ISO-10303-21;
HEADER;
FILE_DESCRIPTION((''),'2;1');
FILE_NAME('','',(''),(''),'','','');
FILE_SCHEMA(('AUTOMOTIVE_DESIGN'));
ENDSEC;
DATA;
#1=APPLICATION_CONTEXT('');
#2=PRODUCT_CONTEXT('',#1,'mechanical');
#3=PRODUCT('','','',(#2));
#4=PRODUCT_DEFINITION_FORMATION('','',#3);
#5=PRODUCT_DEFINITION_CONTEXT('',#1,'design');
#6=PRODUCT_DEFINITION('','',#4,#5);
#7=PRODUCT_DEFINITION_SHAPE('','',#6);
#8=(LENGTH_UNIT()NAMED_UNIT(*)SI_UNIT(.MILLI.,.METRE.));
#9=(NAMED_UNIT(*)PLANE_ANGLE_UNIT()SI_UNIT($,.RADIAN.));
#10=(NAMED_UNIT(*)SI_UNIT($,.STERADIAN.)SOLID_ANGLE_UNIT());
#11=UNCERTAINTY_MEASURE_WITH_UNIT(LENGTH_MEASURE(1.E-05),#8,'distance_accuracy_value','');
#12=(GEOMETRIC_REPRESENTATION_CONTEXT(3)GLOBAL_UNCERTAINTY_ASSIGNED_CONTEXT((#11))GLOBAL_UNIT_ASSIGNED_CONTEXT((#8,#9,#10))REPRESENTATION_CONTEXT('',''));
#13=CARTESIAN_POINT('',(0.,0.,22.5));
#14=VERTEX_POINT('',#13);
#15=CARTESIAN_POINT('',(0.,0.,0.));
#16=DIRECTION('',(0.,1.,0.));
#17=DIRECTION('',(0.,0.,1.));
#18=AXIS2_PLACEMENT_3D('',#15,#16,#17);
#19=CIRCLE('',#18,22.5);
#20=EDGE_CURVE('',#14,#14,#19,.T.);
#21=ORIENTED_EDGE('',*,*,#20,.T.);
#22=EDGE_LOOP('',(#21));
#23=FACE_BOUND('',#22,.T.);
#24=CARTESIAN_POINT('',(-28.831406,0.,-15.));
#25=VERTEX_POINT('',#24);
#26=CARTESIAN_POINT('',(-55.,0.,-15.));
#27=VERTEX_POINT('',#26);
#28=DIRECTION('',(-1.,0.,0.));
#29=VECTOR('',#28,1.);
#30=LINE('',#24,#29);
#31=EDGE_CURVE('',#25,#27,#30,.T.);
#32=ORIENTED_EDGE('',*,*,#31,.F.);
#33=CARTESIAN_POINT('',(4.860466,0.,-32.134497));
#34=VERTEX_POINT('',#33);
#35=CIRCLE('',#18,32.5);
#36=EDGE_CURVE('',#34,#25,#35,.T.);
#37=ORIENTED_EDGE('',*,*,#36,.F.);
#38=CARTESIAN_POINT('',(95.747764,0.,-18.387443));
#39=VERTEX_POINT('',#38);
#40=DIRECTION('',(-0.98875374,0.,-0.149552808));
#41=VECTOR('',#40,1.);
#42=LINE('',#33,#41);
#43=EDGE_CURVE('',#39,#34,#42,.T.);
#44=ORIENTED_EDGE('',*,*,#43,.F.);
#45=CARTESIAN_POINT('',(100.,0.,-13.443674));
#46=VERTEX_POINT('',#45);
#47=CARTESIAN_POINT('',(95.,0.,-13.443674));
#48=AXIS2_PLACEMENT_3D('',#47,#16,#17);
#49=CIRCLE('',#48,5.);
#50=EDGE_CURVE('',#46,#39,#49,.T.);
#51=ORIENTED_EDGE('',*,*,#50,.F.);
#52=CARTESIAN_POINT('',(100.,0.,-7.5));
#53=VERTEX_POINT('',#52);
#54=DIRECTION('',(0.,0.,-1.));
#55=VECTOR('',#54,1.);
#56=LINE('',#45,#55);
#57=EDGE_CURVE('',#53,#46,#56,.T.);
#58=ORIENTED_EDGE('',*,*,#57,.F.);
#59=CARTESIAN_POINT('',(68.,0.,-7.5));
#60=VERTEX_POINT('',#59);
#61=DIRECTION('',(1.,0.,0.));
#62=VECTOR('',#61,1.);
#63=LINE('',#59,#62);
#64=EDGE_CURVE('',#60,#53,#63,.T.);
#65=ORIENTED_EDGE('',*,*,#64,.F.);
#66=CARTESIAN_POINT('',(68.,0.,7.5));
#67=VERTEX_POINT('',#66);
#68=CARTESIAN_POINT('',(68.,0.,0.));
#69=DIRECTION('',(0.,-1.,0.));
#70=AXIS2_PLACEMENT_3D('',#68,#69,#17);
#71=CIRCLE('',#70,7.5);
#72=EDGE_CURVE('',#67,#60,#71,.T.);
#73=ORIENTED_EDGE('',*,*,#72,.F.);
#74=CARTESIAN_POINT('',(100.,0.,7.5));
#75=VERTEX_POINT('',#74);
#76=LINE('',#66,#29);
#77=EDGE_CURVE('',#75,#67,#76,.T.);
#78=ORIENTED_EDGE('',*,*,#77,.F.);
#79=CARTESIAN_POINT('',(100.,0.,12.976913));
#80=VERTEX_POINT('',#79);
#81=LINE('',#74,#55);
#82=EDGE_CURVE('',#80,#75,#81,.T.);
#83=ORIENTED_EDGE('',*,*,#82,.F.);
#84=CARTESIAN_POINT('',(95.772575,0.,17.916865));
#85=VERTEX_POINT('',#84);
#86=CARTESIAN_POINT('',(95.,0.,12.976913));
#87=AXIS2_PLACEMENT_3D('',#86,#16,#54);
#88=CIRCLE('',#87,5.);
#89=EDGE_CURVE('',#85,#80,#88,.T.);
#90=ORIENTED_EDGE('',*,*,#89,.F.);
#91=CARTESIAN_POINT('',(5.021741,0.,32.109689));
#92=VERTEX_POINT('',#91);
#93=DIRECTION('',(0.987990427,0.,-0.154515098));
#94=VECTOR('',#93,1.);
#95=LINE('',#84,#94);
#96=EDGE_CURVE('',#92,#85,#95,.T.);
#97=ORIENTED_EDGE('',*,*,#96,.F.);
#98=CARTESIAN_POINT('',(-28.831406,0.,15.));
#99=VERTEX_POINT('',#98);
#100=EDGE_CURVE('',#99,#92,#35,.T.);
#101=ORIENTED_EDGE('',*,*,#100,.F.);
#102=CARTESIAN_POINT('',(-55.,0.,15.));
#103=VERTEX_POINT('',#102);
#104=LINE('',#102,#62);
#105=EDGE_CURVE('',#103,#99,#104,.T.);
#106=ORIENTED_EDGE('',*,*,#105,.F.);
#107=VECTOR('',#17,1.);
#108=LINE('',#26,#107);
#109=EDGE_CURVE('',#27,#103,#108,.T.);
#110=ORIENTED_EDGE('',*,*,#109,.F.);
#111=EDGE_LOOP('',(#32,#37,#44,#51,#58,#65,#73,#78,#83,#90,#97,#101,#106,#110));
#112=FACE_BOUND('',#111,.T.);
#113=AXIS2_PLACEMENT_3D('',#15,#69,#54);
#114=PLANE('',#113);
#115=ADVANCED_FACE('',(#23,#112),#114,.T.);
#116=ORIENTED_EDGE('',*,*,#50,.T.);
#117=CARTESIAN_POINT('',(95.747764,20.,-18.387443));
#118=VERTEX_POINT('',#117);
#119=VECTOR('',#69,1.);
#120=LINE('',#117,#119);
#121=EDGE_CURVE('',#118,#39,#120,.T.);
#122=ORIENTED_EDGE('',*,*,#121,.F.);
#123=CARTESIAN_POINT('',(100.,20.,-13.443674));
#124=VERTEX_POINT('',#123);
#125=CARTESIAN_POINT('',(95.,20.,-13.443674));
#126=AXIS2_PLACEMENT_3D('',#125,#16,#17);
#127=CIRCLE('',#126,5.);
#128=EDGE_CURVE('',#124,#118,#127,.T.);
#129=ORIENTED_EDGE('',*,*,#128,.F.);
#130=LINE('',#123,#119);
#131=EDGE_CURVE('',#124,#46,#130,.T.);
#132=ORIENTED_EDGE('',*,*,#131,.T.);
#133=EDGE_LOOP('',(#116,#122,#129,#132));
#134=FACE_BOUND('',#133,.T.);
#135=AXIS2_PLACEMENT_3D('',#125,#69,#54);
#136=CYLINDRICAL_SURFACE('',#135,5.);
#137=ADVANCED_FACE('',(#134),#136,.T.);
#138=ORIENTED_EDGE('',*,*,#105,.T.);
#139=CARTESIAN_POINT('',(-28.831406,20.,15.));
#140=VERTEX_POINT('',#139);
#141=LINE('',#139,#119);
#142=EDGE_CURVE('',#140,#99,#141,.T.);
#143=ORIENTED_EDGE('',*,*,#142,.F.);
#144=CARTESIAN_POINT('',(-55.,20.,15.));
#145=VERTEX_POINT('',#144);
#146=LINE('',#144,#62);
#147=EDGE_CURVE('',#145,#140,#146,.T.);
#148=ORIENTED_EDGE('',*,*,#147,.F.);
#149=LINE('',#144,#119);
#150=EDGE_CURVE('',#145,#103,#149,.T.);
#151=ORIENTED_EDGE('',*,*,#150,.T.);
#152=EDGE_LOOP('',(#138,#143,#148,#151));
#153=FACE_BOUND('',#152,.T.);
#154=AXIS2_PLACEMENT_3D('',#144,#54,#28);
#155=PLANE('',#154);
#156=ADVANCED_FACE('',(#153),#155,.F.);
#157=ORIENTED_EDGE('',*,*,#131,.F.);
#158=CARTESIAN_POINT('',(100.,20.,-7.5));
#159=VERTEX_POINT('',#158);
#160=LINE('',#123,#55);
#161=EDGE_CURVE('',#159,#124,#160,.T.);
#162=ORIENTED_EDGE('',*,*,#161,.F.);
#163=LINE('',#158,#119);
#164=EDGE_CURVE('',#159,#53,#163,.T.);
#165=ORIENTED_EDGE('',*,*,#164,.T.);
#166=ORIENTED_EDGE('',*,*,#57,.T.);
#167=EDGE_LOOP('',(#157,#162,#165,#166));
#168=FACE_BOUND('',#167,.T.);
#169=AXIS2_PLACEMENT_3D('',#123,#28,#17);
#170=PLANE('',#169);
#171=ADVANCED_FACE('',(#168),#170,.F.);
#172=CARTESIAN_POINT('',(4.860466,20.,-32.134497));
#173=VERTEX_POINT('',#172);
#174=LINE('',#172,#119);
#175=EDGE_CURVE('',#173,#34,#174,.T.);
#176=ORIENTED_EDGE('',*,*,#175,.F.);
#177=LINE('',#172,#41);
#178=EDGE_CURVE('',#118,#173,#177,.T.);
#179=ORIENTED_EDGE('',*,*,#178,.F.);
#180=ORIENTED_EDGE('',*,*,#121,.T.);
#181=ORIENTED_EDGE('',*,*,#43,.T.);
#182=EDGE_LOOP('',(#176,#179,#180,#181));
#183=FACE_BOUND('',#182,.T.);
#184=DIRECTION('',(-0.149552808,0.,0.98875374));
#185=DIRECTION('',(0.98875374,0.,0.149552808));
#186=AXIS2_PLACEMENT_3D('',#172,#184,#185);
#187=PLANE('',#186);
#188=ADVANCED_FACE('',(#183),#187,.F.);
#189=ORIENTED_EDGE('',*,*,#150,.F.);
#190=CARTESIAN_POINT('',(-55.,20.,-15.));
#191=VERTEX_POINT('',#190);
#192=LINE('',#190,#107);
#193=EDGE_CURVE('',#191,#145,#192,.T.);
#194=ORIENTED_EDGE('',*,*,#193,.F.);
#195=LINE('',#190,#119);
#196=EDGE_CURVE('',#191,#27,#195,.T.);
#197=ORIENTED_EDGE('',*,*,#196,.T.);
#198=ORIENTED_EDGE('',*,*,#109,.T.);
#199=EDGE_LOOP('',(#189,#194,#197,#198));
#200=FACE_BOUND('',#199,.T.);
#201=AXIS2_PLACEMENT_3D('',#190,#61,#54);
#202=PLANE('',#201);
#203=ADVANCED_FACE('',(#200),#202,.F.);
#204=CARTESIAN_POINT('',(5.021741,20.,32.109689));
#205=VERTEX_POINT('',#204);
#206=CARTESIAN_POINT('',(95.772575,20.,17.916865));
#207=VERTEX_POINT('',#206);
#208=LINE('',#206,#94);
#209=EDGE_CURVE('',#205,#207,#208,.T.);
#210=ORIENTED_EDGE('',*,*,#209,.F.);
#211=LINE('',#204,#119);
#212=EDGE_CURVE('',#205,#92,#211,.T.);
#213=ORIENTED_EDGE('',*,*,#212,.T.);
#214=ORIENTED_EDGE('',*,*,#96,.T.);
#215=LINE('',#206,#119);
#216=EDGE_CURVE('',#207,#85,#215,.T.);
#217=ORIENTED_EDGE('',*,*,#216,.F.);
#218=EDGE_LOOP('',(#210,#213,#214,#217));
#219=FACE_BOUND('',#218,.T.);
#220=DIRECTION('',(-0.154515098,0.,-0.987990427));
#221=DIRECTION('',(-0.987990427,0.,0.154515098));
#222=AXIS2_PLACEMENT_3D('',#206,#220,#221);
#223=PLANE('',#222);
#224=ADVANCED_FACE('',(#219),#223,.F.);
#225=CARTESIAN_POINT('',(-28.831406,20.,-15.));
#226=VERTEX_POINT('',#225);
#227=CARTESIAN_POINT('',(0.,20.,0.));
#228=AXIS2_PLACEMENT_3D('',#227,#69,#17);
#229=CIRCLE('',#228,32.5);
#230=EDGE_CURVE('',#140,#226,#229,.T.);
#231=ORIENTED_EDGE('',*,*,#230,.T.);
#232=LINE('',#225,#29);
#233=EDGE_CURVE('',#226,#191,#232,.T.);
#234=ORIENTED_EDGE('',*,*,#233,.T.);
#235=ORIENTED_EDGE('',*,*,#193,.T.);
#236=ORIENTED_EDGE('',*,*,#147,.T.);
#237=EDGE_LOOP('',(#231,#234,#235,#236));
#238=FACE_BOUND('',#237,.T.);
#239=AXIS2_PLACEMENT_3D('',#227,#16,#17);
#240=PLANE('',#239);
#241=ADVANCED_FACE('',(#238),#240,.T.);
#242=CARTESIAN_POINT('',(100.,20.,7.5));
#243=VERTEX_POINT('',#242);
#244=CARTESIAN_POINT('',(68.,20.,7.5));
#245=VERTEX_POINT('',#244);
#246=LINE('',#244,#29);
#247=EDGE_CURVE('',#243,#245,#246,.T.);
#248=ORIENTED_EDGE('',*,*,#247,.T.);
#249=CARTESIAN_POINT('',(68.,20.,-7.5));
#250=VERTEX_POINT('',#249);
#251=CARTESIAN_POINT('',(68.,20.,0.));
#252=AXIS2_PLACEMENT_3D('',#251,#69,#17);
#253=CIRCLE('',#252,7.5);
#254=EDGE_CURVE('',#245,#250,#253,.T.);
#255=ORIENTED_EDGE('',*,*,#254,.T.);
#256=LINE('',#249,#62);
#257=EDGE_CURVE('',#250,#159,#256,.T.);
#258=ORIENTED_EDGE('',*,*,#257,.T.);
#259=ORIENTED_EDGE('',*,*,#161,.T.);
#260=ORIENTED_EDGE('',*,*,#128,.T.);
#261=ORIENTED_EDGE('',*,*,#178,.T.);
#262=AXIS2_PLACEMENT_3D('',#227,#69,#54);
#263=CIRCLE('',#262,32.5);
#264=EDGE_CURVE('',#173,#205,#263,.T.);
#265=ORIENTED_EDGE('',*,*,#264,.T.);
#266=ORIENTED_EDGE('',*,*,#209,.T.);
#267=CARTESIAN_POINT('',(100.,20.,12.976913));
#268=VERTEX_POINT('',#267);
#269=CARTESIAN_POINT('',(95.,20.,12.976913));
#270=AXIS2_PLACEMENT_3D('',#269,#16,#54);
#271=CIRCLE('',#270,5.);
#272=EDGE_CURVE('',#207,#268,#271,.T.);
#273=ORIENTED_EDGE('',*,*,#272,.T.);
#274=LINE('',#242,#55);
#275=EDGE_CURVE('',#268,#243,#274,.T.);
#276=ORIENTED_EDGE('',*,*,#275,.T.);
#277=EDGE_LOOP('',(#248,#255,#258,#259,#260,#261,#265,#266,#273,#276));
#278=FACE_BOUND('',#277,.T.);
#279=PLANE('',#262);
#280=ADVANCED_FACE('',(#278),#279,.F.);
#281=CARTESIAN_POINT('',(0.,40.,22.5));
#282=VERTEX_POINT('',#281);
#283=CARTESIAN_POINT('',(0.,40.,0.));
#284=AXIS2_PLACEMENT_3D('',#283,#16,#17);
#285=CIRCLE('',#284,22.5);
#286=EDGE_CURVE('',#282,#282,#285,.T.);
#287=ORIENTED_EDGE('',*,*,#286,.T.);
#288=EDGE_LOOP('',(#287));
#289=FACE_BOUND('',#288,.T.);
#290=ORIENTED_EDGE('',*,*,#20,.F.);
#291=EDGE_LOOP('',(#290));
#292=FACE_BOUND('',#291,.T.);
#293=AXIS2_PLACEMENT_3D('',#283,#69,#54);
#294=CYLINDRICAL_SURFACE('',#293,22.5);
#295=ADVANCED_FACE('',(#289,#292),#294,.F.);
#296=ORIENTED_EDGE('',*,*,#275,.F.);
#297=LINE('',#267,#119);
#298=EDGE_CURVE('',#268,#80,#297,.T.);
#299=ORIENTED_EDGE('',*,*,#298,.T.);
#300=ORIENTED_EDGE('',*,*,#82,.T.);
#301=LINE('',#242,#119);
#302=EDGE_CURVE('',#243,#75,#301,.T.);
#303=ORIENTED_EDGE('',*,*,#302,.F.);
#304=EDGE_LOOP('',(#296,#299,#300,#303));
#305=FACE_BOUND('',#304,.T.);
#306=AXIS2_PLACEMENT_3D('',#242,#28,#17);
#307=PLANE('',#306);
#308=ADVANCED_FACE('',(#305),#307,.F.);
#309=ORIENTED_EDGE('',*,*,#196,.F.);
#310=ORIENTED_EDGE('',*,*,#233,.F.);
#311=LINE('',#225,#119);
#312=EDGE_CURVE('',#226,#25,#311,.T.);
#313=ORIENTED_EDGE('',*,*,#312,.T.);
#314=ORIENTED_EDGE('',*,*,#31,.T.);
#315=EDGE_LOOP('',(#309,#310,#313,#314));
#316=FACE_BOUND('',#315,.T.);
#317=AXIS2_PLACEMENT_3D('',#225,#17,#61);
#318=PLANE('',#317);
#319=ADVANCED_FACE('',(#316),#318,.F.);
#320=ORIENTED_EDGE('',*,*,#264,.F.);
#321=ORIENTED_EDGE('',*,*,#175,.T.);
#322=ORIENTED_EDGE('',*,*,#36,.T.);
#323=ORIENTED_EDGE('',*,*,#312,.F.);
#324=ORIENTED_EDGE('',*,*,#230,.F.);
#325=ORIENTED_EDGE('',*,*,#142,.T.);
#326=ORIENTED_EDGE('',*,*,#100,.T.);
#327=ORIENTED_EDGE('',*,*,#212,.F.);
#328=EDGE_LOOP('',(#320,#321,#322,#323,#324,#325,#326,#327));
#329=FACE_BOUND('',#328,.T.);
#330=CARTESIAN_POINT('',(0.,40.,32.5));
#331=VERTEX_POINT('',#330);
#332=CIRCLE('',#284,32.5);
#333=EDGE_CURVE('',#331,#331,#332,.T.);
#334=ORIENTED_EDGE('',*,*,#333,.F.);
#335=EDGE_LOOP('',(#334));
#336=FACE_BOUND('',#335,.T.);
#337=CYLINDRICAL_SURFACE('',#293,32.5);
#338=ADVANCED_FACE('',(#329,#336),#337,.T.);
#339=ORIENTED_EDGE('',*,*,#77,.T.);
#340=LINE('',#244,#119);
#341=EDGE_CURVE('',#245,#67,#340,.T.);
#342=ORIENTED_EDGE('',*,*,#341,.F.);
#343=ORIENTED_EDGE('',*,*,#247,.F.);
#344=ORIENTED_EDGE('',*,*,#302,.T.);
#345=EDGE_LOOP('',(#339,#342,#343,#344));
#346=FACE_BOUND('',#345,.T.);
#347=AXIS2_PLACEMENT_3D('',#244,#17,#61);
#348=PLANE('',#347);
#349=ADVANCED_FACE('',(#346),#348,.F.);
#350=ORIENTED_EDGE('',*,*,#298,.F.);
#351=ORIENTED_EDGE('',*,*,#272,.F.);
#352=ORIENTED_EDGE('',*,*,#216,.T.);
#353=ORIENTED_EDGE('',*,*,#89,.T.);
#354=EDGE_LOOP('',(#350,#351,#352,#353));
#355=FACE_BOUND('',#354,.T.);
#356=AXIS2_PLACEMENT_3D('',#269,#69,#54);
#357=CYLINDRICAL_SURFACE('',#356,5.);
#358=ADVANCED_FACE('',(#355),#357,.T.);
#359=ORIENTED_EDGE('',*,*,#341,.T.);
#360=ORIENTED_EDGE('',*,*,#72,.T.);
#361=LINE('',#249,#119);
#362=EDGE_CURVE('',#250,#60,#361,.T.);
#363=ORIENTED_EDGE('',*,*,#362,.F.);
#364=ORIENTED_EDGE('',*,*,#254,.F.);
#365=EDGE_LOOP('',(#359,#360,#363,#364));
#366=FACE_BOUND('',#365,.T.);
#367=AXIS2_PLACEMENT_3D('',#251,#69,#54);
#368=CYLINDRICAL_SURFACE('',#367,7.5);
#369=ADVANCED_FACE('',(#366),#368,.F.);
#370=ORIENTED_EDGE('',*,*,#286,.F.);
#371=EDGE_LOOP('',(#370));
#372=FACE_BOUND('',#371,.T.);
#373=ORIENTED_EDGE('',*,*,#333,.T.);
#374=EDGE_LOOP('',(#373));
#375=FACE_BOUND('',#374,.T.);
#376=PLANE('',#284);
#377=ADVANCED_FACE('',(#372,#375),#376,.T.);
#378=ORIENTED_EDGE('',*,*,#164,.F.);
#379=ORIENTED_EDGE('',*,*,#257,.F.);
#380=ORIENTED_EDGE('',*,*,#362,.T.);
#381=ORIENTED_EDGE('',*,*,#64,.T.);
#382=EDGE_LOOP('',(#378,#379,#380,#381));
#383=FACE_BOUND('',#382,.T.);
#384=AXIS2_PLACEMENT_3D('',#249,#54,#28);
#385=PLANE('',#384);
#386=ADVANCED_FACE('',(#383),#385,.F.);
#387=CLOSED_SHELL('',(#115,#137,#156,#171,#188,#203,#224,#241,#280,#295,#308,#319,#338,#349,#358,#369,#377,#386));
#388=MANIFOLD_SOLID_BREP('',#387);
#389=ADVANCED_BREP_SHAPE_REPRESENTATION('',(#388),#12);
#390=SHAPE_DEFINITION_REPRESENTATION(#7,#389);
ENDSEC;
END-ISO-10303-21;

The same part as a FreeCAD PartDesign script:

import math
import FreeCAD as App
import Part
import Sketcher
Q = App.Units.Quantity

doc = App.newDocument("Part")
body = doc.addObject("PartDesign::Body", "Body")

sketch1 = doc.addObject("Sketcher::SketchObject", "Sketch")
body.addObject(sketch1)
sketch1.AttachmentSupport = (doc.XZ_Plane, [""])
sketch1.MapMode = "FlatFace"
sketch1.addGeometry([
    Part.LineSegment(App.Vector(96, -18, 0), App.Vector(5, -32, 0)),
    Part.ArcOfCircle(Part.Circle(App.Vector(0, 0, 0), App.Vector(0, 0, 1), 32), math.radians(-81), math.radians(81)),
    Part.LineSegment(App.Vector(5, 32, 0), App.Vector(96, 18, 0)),
    Part.ArcOfCircle(Part.Circle(App.Vector(95, 13, 0), App.Vector(0, 0, 1), 5), math.radians(0), math.radians(81)),
    Part.LineSegment(App.Vector(100, 13, 0), App.Vector(100, 8, 0)),
    Part.LineSegment(App.Vector(100, 8, 0), App.Vector(68, 8, 0)),
    Part.ArcOfCircle(Part.Circle(App.Vector(68, 0, 0), App.Vector(0, 0, 1), 8), math.radians(90), math.radians(270)),
    Part.LineSegment(App.Vector(68, -8, 0), App.Vector(100, -8, 0)),
    Part.LineSegment(App.Vector(100, -8, 0), App.Vector(100, -13, 0)),
    Part.ArcOfCircle(Part.Circle(App.Vector(95, -13, 0), App.Vector(0, 0, 1), 5), math.radians(-81), math.radians(0)),
], False)
sketch1.addConstraint([
    Sketcher.Constraint("Tangent", 0, 2, 1, 1),
    Sketcher.Constraint("Tangent", 1, 2, 2, 1),
    Sketcher.Constraint("Tangent", 2, 2, 3, 2),
    Sketcher.Constraint("Tangent", 3, 1, 4, 1),
    Sketcher.Constraint("Coincident", 4, 2, 5, 1),
    Sketcher.Constraint("Tangent", 5, 2, 6, 1),
    Sketcher.Constraint("Tangent", 6, 2, 7, 1),
    Sketcher.Constraint("Coincident", 7, 2, 8, 1),
    Sketcher.Constraint("Tangent", 8, 2, 9, 2),
    Sketcher.Constraint("Tangent", 9, 1, 0, 1),
    Sketcher.Constraint("Vertical", 4),
    Sketcher.Constraint("Horizontal", 5),
    Sketcher.Constraint("Horizontal", 7),
    Sketcher.Constraint("Vertical", 8),
    Sketcher.Constraint("Coincident", 1, 3, -1, 1),
    Sketcher.Constraint("Equal", 3, 9),
    Sketcher.Constraint("Symmetric", 4, 2, 7, 2, -1),
    Sketcher.Constraint("Radius", 3, Q("5 mm")),
    Sketcher.Constraint("Radius", 1, Q("32.5 mm")),
    Sketcher.Constraint("Radius", 6, Q("7.5 mm")),
    Sketcher.Constraint("DistanceX", 5, 2, 5, 1, Q("32 mm")),
    Sketcher.Constraint("DistanceX", -1, 1, 3, 3, Q("95 mm")),
    Sketcher.Constraint("Distance", 2, Q("91.853962 mm")),
    Sketcher.Constraint("DistanceY", 8, 2, 8, 1, Q("5.943674 mm")),
])
pad1 = doc.addObject("PartDesign::Pad", "Pad")
body.addObject(pad1)
pad1.Profile = sketch1
pad1.Length = 20
pad1.Reversed = True

sketch2 = doc.addObject("Sketcher::SketchObject", "Sketch001")
body.addObject(sketch2)
sketch2.AttachmentSupport = (doc.XZ_Plane, [""])
sketch2.MapMode = "FlatFace"
sketch2.addGeometry([
    Part.Circle(App.Vector(0, 0, 0), App.Vector(0, 0, 1), 32),
    Part.Circle(App.Vector(0, 0, 0), App.Vector(0, 0, 1), 22),
], False)
sketch2.addConstraint([
    Sketcher.Constraint("Coincident", 0, 3, -1, 1),
    Sketcher.Constraint("Coincident", 1, 3, -1, 1),
    Sketcher.Constraint("Diameter", 0, Q("65 mm")),
    Sketcher.Constraint("Diameter", 1, Q("45 mm")),
])
pad2 = doc.addObject("PartDesign::Pad", "Pad001")
body.addObject(pad2)
pad2.Profile = sketch2
pad2.Length = 40
pad2.Reversed = True

sketch3 = doc.addObject("Sketcher::SketchObject", "Sketch002")
body.addObject(sketch3)
sketch3.AttachmentSupport = (doc.XZ_Plane, [""])
sketch3.MapMode = "FlatFace"
sketch3.addGeometry([
    Part.LineSegment(App.Vector(-29, -15, 0), App.Vector(-55, -15, 0)),
    Part.LineSegment(App.Vector(-55, -15, 0), App.Vector(-55, 15, 0)),
    Part.LineSegment(App.Vector(-55, 15, 0), App.Vector(-29, 15, 0)),
    Part.ArcOfCircle(Part.Circle(App.Vector(0, 0, 0), App.Vector(0, 0, 1), 33), math.radians(153), math.radians(207)),
], False)
sketch3.addConstraint([
    Sketcher.Constraint("Coincident", 0, 2, 1, 1),
    Sketcher.Constraint("Coincident", 1, 2, 2, 1),
    Sketcher.Constraint("Coincident", 2, 2, 3, 1),
    Sketcher.Constraint("Coincident", 3, 2, 0, 1),
    Sketcher.Constraint("Horizontal", 0),
    Sketcher.Constraint("Vertical", 1),
    Sketcher.Constraint("Horizontal", 2),
    Sketcher.Constraint("Coincident", 3, 3, -1, 1),
    Sketcher.Constraint("Vertical", 2, 2, 3, 2),
    Sketcher.Constraint("Radius", 3, Q("32.5 mm")),
    Sketcher.Constraint("DistanceY", 1, 1, 1, 2, Q("30 mm")),
    Sketcher.Constraint("DistanceX", 0, 2, -1, 1, Q("55 mm")),
])
pad3 = doc.addObject("PartDesign::Pad", "Pad002")
body.addObject(pad3)
pad3.Profile = sketch3
pad3.Length = 20
pad3.Reversed = True

doc.recompute()
